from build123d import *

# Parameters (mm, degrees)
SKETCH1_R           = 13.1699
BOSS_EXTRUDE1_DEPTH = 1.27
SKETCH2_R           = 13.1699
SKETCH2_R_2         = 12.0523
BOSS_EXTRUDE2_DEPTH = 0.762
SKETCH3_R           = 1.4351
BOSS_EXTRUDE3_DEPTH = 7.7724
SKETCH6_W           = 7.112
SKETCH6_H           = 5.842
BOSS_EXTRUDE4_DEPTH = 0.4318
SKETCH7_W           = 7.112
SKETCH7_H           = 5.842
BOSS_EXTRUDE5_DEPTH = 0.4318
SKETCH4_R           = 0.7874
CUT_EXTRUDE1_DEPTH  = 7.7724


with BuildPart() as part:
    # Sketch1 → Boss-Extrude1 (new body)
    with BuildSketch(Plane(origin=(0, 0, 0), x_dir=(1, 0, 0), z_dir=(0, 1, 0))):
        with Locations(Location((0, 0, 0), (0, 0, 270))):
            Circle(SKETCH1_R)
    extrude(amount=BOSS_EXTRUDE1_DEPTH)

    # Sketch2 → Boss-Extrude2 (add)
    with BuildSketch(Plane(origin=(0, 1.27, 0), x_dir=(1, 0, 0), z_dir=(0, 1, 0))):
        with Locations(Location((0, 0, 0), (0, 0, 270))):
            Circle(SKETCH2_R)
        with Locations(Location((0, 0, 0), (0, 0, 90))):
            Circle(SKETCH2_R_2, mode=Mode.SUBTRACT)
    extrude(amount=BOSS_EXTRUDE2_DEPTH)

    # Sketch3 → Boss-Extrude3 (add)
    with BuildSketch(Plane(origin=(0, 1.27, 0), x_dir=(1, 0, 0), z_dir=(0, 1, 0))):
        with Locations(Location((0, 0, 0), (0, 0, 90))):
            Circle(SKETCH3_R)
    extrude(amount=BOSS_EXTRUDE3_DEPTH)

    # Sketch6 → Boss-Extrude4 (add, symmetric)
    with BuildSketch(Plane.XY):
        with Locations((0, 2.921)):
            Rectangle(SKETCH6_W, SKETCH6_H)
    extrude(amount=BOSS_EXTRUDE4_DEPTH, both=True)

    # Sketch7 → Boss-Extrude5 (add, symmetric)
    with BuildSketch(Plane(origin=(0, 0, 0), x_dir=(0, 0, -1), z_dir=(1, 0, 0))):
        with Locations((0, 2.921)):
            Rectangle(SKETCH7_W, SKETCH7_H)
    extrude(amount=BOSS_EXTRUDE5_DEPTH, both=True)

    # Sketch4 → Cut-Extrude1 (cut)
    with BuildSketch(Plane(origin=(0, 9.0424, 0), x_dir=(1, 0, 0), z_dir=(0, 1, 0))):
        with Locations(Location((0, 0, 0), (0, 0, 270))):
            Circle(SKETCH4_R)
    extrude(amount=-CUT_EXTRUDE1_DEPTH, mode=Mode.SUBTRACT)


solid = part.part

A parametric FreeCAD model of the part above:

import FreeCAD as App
import Part
import Sketcher

V = App.Vector
Q = App.Units.Quantity


def add_polygon(sketch, points):
    """Adds a closed chain of lines whose ends are joined by coincident constraints."""
    first, n = sketch.GeometryCount, len(points)
    for a, b in zip(points, points[1:] + points[:1]):
        sketch.addGeometry(Part.LineSegment(App.Vector(*a, 0), App.Vector(*b, 0)), False)
    for i in range(n):
        sketch.addConstraint(Sketcher.Constraint("Coincident", first + i, 2, first + (i + 1) % n, 1))

doc = App.newDocument("Part")
body = doc.addObject("PartDesign::Body", "Body")

# Sketch on XZ plane
sketch1 = body.newObject("Sketcher::SketchObject", "Sketch")
sketch1.AttachmentSupport = (doc.getObject("XZ_Plane"), [""])
sketch1.MapMode = "FlatFace"
sketch1.addGeometry(Part.Circle(V(0, 0, 0), V(0, 0, 1), 13.1699), False)
sketch1.addConstraint(Sketcher.Constraint("Coincident", 0, 3, -1, 1))
sketch1.addConstraint(Sketcher.Constraint("Diameter", 0, Q("1.037 in")))
pad1 = body.newObject("PartDesign::Pad", "Pad")
pad1.Profile = sketch1
pad1.Length = Q("0.05 in")
pad1.Reversed = True

# Sketch on XZ plane
sketch2 = body.newObject("Sketcher::SketchObject", "Sketch001")
sketch2.AttachmentSupport = (doc.getObject("XZ_Plane"), [""])
sketch2.MapMode = "FlatFace"
sketch2.AttachmentOffset = App.Placement(V(0, 0, -0.05 * 25.4), App.Rotation())
sketch2.addGeometry(Part.Circle(V(0, 0, 0), V(0, 0, 1), 13.1699), False)
sketch2.addGeometry(Part.Circle(V(0, 0, 0), V(0, 0, 1), 12.0523), False)
sketch2.addConstraint(Sketcher.Constraint("Coincident", 0, 3, -1, 1))
sketch2.addConstraint(Sketcher.Constraint("Coincident", 1, 3, -1, 1))
sketch2.addConstraint(Sketcher.Constraint("Diameter", 0, Q("1.037 in")))
sketch2.addConstraint(Sketcher.Constraint("Diameter", 1, Q("0.949 in")))
pad2 = body.newObject("PartDesign::Pad", "Pad001")
pad2.Profile = sketch2
pad2.Length = Q("0.03 in")
pad2.Reversed = True

# Sketch on XZ plane
sketch3 = body.newObject("Sketcher::SketchObject", "Sketch002")
sketch3.AttachmentSupport = (doc.getObject("XZ_Plane"), [""])
sketch3.MapMode = "FlatFace"
sketch3.AttachmentOffset = App.Placement(V(0, 0, -0.05 * 25.4), App.Rotation())
sketch3.addGeometry(Part.Circle(V(0, 0, 0), V(0, 0, 1), 1.4351), False)
sketch3.addConstraint(Sketcher.Constraint("Coincident", 0, 3, -1, 1))
sketch3.addConstraint(Sketcher.Constraint("Diameter", 0, Q("0.113 in")))
pad3 = body.newObject("PartDesign::Pad", "Pad002")
pad3.Profile = sketch3
pad3.Length = Q("0.306 in")
pad3.Reversed = True

# Sketch on XY plane
sketch4 = body.newObject("Sketcher::SketchObject", "Sketch003")
sketch4.AttachmentSupport = (doc.getObject("XY_Plane"), [""])
sketch4.MapMode = "FlatFace"
add_polygon(sketch4, [(-3.556, 5.842), (-3.556, 0), (3.556, 0), (3.556, 5.842)])  # lines 0-3
sketch4.addConstraint(Sketcher.Constraint("Vertical", 0))
sketch4.addConstraint(Sketcher.Constraint("Horizontal", 1))
sketch4.addConstraint(Sketcher.Constraint("Vertical", 2))
sketch4.addConstraint(Sketcher.Constraint("Horizontal", 3))
sketch4.addConstraint(Sketcher.Constraint("Symmetric", 0, 2, 1, 2, -1, 1))
sketch4.addConstraint(Sketcher.Constraint("DistanceX", 1, 1, 1, 2, Q("0.28 in")))
sketch4.addConstraint(Sketcher.Constraint("DistanceY", 0, 2, 0, 1, Q("0.23 in")))
pad4 = body.newObject("PartDesign::Pad", "Pad003")
pad4.Profile = sketch4
pad4.Length = Q("0.034 in")
pad4.Midplane = True

# Sketch on YZ plane
sketch5 = body.newObject("Sketcher::SketchObject", "Sketch004")
sketch5.AttachmentSupport = (doc.getObject("YZ_Plane"), [""])
sketch5.MapMode = "FlatFace"
add_polygon(sketch5, [(5.842, 3.556), (0, 3.556), (0, -3.556), (5.842, -3.556)])  # lines 0-3
sketch5.addConstraint(Sketcher.Constraint("Horizontal", 0))
sketch5.addConstraint(Sketcher.Constraint("Vertical", 1))
sketch5.addConstraint(Sketcher.Constraint("Horizontal", 2))
sketch5.addConstraint(Sketcher.Constraint("Vertical", 3))
sketch5.addConstraint(Sketcher.Constraint("Symmetric", 0, 2, 1, 2, -1, 1))
sketch5.addConstraint(Sketcher.Constraint("DistanceX", 0, 2, 0, 1, Q("0.23 in")))
sketch5.addConstraint(Sketcher.Constraint("DistanceY", 1, 2, 1, 1, Q("0.28 in")))
pad5 = body.newObject("PartDesign::Pad", "Pad004")
pad5.Profile = sketch5
pad5.Length = Q("0.034 in")
pad5.Midplane = True

# Sketch on XZ plane
sketch6 = body.newObject("Sketcher::SketchObject", "Sketch005")
sketch6.AttachmentSupport = (doc.getObject("XZ_Plane"), [""])
sketch6.MapMode = "FlatFace"
sketch6.AttachmentOffset = App.Placement(V(0, 0, -0.356 * 25.4), App.Rotation())
sketch6.addGeometry(Part.Circle(V(0, 0, 0), V(0, 0, 1), 0.7874), False)
sketch6.addConstraint(Sketcher.Constraint("Coincident", 0, 3, -1, 1))
sketch6.addConstraint(Sketcher.Constraint("Diameter", 0, Q("0.062 in")))
pocket1 = body.newObject("PartDesign::Pocket", "Pocket")
pocket1.Profile = sketch6
pocket1.Length = Q("0.306 in")
pocket1.Reversed = True

doc.recompute()
